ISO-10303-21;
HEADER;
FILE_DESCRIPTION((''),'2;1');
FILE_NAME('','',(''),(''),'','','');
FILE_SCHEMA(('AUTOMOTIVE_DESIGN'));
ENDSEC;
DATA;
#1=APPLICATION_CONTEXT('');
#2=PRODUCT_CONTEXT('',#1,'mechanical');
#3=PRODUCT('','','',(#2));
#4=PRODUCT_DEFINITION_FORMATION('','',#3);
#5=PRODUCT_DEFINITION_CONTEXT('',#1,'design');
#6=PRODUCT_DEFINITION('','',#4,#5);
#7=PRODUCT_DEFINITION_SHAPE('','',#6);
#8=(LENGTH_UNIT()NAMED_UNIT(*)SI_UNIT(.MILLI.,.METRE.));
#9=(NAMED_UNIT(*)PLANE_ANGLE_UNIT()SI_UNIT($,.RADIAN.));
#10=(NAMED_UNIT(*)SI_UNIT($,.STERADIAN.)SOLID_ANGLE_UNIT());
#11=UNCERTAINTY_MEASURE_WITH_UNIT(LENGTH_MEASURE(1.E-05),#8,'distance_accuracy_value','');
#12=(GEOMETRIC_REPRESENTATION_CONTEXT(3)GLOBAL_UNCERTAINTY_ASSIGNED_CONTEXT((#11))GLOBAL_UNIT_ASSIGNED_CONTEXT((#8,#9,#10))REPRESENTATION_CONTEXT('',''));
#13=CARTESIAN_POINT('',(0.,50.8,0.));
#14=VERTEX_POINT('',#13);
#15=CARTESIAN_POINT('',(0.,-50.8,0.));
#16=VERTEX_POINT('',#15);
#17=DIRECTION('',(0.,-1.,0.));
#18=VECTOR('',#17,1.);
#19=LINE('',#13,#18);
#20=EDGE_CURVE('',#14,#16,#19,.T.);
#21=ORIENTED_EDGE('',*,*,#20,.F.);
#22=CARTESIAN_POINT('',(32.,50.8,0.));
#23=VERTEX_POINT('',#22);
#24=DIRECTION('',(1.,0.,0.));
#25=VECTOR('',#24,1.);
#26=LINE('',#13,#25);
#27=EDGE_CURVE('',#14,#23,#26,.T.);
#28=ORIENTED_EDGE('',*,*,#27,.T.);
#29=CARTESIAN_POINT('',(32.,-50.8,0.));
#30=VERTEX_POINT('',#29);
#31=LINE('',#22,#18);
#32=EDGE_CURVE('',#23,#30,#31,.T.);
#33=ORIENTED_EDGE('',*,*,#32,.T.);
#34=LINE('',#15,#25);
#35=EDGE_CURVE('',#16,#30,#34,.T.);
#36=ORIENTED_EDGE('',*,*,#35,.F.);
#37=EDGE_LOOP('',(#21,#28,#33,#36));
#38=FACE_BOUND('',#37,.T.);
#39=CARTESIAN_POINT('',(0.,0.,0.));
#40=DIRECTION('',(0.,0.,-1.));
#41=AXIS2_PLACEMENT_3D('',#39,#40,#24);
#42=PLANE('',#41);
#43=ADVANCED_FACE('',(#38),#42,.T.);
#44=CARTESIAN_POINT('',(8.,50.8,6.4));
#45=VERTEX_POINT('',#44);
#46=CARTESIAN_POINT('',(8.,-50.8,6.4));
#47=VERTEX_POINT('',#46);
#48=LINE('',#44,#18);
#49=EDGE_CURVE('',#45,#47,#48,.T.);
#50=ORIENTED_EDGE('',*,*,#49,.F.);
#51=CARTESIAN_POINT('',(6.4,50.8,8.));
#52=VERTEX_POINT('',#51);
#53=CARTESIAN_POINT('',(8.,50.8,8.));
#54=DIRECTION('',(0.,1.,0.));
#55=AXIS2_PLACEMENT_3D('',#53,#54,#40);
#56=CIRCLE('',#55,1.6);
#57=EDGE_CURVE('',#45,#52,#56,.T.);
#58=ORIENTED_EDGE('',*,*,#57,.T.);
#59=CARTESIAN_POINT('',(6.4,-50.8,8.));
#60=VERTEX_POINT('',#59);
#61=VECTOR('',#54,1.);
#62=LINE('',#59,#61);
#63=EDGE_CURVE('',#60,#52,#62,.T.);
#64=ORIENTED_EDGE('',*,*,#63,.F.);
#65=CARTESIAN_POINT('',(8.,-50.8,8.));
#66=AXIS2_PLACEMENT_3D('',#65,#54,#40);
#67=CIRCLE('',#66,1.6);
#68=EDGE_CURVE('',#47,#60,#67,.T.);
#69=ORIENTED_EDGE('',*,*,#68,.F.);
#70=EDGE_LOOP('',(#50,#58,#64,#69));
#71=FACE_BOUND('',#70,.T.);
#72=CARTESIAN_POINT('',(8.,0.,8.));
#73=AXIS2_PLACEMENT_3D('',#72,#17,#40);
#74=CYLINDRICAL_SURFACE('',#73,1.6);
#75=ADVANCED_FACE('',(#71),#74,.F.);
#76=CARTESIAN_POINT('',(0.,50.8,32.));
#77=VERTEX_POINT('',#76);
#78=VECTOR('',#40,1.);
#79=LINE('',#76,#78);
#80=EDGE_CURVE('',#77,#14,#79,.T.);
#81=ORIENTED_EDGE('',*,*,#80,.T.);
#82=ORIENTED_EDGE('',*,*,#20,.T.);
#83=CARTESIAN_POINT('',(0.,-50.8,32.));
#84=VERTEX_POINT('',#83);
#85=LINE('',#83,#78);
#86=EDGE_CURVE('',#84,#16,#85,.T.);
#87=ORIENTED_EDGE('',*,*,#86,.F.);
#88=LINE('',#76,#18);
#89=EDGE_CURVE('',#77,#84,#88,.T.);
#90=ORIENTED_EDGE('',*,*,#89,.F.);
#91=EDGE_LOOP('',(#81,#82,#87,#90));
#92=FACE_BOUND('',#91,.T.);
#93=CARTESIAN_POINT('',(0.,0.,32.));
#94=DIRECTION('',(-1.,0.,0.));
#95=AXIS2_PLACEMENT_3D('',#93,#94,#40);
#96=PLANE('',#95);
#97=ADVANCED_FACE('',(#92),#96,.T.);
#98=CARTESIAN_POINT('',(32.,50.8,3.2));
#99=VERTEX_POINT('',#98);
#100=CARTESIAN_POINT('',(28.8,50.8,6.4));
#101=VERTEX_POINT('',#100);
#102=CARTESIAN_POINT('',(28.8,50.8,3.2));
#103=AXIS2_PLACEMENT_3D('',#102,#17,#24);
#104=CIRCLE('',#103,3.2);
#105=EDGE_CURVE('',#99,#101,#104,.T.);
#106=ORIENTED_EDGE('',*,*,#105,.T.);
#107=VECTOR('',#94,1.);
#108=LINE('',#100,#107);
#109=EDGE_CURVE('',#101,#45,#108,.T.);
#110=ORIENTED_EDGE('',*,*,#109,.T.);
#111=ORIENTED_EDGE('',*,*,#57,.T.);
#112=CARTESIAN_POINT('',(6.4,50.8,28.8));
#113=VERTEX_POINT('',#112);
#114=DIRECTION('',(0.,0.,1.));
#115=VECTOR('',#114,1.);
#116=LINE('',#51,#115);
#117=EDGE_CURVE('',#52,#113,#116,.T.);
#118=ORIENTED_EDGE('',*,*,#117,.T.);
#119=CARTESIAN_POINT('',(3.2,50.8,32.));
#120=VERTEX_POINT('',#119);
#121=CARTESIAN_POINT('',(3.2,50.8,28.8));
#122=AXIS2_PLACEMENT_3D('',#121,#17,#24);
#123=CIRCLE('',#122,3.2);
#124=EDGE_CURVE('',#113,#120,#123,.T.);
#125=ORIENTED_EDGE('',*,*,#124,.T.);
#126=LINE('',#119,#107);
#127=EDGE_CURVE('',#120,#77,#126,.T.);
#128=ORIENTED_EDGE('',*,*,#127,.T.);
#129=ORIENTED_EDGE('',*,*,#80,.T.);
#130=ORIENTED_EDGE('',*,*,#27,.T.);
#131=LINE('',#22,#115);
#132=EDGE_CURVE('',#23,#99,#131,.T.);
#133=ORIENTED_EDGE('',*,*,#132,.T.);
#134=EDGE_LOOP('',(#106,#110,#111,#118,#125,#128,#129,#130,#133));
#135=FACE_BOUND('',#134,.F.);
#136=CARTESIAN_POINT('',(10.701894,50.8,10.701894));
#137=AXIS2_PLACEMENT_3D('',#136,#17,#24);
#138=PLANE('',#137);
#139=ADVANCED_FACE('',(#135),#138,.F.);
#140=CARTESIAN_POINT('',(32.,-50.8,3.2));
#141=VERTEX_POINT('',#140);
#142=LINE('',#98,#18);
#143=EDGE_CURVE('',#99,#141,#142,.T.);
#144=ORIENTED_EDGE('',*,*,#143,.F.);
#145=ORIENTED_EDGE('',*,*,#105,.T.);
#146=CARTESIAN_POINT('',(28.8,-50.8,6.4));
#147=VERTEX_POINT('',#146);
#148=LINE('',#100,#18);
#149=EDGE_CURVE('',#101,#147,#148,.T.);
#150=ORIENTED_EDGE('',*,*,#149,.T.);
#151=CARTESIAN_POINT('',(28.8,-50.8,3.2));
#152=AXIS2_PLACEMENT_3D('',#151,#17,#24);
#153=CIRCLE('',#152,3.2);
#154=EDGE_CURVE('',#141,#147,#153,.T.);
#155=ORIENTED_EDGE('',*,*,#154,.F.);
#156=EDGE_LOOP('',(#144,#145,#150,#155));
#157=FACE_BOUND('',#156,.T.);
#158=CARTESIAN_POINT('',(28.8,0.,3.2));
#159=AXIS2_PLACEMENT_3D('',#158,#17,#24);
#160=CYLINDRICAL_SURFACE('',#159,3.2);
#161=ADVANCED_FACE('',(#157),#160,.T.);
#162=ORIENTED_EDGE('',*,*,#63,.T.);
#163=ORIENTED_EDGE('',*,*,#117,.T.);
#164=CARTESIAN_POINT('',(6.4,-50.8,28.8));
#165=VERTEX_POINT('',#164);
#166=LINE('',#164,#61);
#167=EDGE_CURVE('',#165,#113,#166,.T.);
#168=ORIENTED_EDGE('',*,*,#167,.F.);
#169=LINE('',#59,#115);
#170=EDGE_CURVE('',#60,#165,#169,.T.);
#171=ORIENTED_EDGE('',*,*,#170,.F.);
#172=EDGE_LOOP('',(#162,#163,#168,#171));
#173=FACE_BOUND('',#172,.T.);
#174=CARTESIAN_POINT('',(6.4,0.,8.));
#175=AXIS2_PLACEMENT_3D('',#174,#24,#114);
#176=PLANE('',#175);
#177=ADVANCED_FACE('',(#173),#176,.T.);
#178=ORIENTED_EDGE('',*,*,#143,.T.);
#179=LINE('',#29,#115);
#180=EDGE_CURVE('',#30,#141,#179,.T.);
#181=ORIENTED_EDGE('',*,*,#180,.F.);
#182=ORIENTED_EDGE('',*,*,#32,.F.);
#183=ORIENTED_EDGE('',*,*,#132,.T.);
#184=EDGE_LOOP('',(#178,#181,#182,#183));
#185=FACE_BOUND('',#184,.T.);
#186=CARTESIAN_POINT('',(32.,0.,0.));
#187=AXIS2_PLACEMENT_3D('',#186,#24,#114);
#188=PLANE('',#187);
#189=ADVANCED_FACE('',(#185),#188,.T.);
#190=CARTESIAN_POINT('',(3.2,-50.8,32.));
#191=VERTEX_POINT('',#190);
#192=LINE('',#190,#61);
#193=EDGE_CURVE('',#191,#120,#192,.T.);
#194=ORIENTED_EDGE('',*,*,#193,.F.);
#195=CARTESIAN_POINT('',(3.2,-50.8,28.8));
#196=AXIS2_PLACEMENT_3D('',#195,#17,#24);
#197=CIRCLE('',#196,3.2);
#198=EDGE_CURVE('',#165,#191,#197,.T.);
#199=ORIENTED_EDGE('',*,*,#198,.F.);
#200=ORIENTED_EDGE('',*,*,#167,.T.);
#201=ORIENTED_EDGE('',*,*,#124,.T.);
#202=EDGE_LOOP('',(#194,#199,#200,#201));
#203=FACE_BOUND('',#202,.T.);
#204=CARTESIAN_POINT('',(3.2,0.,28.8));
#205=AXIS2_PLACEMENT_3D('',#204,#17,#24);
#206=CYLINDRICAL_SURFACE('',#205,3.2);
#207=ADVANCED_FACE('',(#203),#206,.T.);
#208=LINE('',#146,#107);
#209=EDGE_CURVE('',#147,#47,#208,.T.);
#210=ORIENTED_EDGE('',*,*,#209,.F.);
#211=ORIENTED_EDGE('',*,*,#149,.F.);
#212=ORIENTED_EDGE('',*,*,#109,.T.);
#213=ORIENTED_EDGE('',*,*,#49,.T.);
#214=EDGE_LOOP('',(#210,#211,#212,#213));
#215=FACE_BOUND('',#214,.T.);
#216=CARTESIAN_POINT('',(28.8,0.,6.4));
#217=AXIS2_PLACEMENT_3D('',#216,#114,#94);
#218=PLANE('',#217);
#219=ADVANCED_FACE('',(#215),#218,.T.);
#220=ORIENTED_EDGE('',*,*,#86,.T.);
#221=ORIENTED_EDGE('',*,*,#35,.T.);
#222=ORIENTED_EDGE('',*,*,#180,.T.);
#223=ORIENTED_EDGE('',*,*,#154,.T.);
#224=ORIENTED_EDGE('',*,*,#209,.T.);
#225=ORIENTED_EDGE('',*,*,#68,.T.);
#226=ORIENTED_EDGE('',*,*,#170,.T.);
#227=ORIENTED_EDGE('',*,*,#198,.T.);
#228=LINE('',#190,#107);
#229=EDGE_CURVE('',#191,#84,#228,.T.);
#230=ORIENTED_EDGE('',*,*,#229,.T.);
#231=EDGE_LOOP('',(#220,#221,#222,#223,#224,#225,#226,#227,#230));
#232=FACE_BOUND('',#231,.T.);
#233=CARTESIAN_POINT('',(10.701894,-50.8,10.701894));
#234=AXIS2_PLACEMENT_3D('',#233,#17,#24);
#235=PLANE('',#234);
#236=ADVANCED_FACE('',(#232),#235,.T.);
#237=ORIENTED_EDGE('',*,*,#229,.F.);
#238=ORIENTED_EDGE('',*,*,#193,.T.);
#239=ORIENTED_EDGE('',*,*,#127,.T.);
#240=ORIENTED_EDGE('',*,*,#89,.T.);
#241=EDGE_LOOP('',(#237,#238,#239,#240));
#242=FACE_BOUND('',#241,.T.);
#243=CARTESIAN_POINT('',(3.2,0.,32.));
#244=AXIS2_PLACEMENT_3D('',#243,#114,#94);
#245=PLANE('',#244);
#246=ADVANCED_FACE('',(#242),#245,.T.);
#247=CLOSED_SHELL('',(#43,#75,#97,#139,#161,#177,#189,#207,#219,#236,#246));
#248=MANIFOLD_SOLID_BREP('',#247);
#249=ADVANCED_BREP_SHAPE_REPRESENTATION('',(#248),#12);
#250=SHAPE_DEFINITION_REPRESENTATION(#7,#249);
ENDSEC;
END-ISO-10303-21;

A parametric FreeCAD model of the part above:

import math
import FreeCAD as App
import Part
import Sketcher
from FreeCAD import Vector
Q = App.Units.Quantity

doc = App.newDocument("Part")
params = doc.addObject("Spreadsheet::Sheet", "Params")
for row, (alias, value) in enumerate([
    ("sketch1_radius", "3.2 mm"),
    ("sketch1_radius2", "1.6 mm"),
    ("sketch1_width", "32 mm"),
    ("sketch1_width2", "3.2 mm"),
    ("pad1_length", "101.6 mm"),
], start=1):
    params.set(f"A{row}", alias)
    params.set(f"B{row}", "=" + value)
    params.setAlias(f"B{row}", alias)

body = doc.addObject("PartDesign::Body", "Body")

sketch1 = body.newObject("Sketcher::SketchObject", "Sketch")
sketch1.AttachmentSupport = (doc.getObject("XZ_Plane"), [""])
sketch1.MapMode = "FlatFace"
sketch1.addGeometry([
    Part.LineSegment(Vector(3.2, 32, 0), Vector(0, 32, 0)),
    Part.LineSegment(Vector(0, 32, 0), Vector(0, 0, 0)),
    Part.LineSegment(Vector(0, 0, 0), Vector(32, 0, 0)),
    Part.LineSegment(Vector(32, 0, 0), Vector(32, 3.2, 0)),
    Part.ArcOfCircle(Part.Circle(Vector(28.8, 3.2, 0), Vector(0, 0, 1), 3.2), math.radians(0), math.radians(90)),
    Part.LineSegment(Vector(28.8, 6.4, 0), Vector(8, 6.4, 0)),
    Part.ArcOfCircle(Part.Circle(Vector(8, 8, 0), Vector(0, 0, 1), 1.6), math.radians(180), math.radians(270)),
    Part.LineSegment(Vector(6.4, 8, 0), Vector(6.4, 28.8, 0)),
    Part.ArcOfCircle(Part.Circle(Vector(3.2, 28.8, 0), Vector(0, 0, 1), 3.2), math.radians(0), math.radians(90)),
], False)
sketch1.addConstraint([
    Sketcher.Constraint("Coincident", 0, 2, 1, 1),
    Sketcher.Constraint("Coincident", 1, 2, 2, 1),
    Sketcher.Constraint("Coincident", 2, 2, 3, 1),
    Sketcher.Constraint("Tangent", 3, 2, 4, 1),
    Sketcher.Constraint("Tangent", 4, 2, 5, 1),
    Sketcher.Constraint("Tangent", 5, 2, 6, 2),
    Sketcher.Constraint("Tangent", 6, 1, 7, 1),
    Sketcher.Constraint("Tangent", 7, 2, 8, 1),
    Sketcher.Constraint("Tangent", 8, 2, 0, 1),
    Sketcher.Constraint("Horizontal", 0),
    Sketcher.Constraint("Vertical", 1),
    Sketcher.Constraint("Horizontal", 2),
    Sketcher.Constraint("Vertical", 3),
    Sketcher.Constraint("Horizontal", 5),
    Sketcher.Constraint("Vertical", 7),
    Sketcher.Constraint("Coincident", 1, 2, -1, 1),
    Sketcher.Constraint("Equal", 4, 8),
    Sketcher.Constraint("Equal", 2, 1),
    Sketcher.Constraint("Equal", 0, 3),
    Sketcher.Constraint("Radius", 4, Q("3.2 mm")),
    Sketcher.Constraint("Radius", 6, Q("1.6 mm")),
    Sketcher.Constraint("DistanceX", 2, 1, 2, 2, Q("32 mm")),
    Sketcher.Constraint("DistanceX", 0, 2, 0, 1, Q("3.2 mm")),
])
sketch1.setExpression("Constraints[19]", "Params.sketch1_radius")
sketch1.setExpression("Constraints[20]", "Params.sketch1_radius2")
sketch1.setExpression("Constraints[21]", "Params.sketch1_width")
sketch1.setExpression("Constraints[22]", "Params.sketch1_width2")
pad1 = body.newObject("PartDesign::Pad", "Pad")
pad1.Profile = sketch1
pad1.setExpression("Length", "Params.pad1_length")
pad1.Midplane = True

doc.recompute()
